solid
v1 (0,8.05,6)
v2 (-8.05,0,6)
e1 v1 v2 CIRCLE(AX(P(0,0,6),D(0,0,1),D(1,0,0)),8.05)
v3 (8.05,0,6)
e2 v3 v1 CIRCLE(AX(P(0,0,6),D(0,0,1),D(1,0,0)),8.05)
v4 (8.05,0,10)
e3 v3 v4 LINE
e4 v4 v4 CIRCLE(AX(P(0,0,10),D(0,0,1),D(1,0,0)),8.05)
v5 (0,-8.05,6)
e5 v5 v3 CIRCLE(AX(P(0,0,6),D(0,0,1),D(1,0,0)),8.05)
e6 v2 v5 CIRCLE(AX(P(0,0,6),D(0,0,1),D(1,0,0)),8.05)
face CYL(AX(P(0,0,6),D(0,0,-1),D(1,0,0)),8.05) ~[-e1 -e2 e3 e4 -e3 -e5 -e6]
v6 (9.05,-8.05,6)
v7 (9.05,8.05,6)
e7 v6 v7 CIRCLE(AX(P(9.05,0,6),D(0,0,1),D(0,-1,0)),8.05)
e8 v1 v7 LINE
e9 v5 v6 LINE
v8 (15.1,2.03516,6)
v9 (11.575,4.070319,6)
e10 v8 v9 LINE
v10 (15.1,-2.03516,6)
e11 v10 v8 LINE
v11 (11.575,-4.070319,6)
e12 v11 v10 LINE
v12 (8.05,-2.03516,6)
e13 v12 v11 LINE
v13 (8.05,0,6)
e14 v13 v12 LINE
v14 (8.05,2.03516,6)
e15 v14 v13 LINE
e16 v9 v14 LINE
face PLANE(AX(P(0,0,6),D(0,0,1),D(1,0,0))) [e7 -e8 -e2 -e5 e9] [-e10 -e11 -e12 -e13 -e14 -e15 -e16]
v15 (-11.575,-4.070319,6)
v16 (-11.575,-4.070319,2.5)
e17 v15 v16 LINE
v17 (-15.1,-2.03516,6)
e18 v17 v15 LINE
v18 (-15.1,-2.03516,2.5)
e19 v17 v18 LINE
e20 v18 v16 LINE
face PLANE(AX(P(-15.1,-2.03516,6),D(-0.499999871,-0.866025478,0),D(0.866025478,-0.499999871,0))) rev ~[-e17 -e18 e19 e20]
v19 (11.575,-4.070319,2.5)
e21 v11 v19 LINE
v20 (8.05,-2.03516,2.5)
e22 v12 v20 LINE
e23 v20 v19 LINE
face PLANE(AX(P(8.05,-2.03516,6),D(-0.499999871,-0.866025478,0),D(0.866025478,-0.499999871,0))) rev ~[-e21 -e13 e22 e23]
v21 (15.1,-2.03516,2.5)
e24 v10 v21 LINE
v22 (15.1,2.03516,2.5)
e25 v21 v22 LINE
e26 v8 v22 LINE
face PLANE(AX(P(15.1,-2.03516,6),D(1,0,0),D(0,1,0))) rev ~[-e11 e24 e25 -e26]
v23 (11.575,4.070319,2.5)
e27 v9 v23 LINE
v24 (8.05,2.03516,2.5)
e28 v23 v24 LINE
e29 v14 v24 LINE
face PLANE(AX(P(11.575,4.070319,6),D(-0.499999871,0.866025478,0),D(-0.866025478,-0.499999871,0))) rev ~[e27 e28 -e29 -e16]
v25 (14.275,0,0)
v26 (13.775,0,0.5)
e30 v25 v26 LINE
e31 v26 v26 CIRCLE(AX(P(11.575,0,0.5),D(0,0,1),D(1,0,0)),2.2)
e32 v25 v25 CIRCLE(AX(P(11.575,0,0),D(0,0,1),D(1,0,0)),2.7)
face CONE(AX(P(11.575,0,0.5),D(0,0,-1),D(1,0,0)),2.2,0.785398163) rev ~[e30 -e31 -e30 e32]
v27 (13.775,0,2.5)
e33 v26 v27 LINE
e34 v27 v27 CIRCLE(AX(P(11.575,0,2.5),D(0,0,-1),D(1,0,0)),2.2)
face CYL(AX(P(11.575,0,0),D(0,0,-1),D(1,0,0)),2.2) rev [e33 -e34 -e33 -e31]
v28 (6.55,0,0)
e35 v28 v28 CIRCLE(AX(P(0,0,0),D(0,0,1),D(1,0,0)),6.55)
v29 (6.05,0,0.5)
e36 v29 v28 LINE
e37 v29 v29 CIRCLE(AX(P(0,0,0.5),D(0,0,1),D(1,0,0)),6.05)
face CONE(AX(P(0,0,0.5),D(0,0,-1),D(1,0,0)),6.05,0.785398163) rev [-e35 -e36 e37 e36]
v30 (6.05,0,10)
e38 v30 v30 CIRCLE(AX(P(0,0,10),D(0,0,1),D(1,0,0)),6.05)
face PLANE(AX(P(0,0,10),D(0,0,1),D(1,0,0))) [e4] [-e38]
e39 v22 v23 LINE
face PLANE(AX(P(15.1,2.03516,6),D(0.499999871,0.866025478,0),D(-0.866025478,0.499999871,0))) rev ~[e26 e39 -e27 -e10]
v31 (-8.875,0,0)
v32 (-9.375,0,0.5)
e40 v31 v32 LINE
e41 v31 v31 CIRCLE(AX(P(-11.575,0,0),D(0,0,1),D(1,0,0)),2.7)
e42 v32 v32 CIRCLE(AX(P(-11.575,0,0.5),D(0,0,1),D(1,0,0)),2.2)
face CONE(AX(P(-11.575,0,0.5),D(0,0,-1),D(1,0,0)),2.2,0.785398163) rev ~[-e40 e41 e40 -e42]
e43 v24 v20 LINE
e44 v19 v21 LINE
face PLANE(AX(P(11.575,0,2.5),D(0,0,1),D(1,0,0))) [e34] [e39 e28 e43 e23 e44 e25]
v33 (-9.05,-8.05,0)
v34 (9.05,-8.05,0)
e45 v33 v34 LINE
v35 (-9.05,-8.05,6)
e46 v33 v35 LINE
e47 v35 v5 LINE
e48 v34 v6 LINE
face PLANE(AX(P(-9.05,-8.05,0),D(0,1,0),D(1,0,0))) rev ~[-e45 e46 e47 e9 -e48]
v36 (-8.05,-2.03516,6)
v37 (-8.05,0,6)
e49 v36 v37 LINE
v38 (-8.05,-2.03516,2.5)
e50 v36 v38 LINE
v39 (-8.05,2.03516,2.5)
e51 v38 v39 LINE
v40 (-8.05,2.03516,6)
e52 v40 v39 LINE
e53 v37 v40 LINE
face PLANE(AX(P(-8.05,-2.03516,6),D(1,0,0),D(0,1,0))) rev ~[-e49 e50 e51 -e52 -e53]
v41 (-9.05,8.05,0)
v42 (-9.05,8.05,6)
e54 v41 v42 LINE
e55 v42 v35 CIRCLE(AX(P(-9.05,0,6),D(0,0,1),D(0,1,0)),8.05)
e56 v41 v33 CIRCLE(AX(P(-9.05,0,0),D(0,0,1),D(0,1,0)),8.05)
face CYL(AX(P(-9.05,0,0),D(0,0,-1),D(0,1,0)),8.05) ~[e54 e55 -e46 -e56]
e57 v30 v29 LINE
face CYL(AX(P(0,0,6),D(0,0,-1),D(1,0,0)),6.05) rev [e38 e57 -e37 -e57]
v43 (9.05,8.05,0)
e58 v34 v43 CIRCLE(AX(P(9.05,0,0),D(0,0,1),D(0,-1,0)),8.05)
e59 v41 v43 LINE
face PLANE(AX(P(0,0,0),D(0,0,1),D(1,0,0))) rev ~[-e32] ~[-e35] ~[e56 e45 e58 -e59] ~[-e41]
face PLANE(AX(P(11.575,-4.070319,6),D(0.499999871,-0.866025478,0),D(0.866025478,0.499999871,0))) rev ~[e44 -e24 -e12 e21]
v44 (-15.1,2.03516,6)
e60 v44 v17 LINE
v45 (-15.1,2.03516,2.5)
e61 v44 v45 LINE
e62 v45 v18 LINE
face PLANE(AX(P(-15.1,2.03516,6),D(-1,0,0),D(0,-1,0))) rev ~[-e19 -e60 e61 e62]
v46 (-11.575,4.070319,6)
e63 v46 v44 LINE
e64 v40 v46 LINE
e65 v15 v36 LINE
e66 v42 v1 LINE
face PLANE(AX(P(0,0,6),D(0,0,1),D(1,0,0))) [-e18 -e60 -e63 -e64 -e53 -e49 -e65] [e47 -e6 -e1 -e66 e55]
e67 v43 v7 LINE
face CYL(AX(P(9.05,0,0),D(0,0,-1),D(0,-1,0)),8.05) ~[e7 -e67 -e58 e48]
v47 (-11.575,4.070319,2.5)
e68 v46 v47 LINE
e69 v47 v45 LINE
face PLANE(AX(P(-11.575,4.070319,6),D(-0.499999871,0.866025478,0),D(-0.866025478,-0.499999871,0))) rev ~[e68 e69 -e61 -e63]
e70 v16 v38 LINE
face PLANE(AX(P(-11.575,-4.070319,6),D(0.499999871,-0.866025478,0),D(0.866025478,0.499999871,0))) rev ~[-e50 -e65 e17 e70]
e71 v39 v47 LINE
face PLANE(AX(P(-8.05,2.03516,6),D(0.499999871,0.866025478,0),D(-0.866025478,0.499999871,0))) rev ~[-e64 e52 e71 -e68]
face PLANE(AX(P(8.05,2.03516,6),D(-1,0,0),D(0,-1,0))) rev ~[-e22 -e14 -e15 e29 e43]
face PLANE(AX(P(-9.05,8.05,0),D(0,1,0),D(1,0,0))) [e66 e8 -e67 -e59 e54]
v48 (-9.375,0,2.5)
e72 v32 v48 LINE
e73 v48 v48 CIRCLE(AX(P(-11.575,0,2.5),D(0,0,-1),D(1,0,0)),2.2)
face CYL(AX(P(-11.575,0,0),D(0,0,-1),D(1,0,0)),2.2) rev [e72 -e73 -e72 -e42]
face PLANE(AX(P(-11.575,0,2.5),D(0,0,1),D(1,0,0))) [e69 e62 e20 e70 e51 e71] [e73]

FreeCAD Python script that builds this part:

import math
import FreeCAD as App
import Part
import Sketcher
from FreeCAD import Vector
Q = App.Units.Quantity


def edges_at(feature, points):
    """Names of the edges that pass closest to the given points."""
    edges = feature.Shape.Edges
    near = lambda p: min(range(len(edges)), key=lambda i: edges[i].distToShape(Part.Vertex(*p))[0])
    return sorted({f"Edge{near(p) + 1}" for p in points})

doc = App.newDocument("Part")
body = doc.addObject("PartDesign::Body", "Body")

# Sketch on XY plane
sketch1 = body.newObject("Sketcher::SketchObject", "Sketch")
sketch1.AttachmentSupport = (doc.getObject("XY_Plane"), [""])
sketch1.MapMode = "FlatFace"
sketch1.addGeometry(Part.ArcOfCircle(Part.Circle(Vector(-9.1, 0, 0), Vector(0, 0, 1), 8.1), math.radians(90), math.radians(270)), False)
sketch1.addGeometry(Part.LineSegment(Vector(-9.1, -8.1, 0), Vector(9.1, -8.1, 0)), False)
sketch1.addGeometry(Part.ArcOfCircle(Part.Circle(Vector(9.1, 0, 0), Vector(0, 0, 1), 8.1), math.radians(-90), math.radians(90)), False)
sketch1.addGeometry(Part.LineSegment(Vector(9.1, 8.1, 0), Vector(-9.1, 8.1, 0)), False)
sketch1.addGeometry(Part.Circle(Vector(-11.6, 0, 0), Vector(0, 0, 1), 2.2), False)
sketch1.addGeometry(Part.Circle(Vector(11.6, 0, 0), Vector(0, 0, 1), 2.2), False)
sketch1.addGeometry(Part.Circle(Vector(0, 0, 0), Vector(0, 0, 1), 6), False)
sketch1.addConstraint(Sketcher.Constraint("Tangent", 0, 2, 1, 1))
sketch1.addConstraint(Sketcher.Constraint("Tangent", 1, 2, 2, 1))
sketch1.addConstraint(Sketcher.Constraint("Tangent", 2, 2, 3, 1))
sketch1.addConstraint(Sketcher.Constraint("Tangent", 3, 2, 0, 1))
sketch1.addConstraint(Sketcher.Constraint("Horizontal", 1))
sketch1.addConstraint(Sketcher.Constraint("Horizontal", 3))
sketch1.addConstraint(Sketcher.Constraint("Coincident", 6, 3, -1, 1))
sketch1.addConstraint(Sketcher.Constraint("Equal", 4, 5))
sketch1.addConstraint(Sketcher.Constraint("Symmetric", 0, 3, 2, 3, -1, 1))
sketch1.addConstraint(Sketcher.Constraint("Symmetric", 4, 3, 5, 3, -1, 1))
sketch1.addConstraint(Sketcher.Constraint("PointOnObject", 4, 3, -1))
sketch1.addConstraint(Sketcher.Constraint("Diameter", 4, Q("4.4 mm")))
sketch1.addConstraint(Sketcher.Constraint("Diameter", 6, Q("12.1 mm")))
sketch1.addConstraint(Sketcher.Constraint("Radius", 0, Q("8.05 mm")))
sketch1.addConstraint(Sketcher.Constraint("DistanceX", 1, 1, 1, 2, Q("18.1 mm")))
sketch1.addConstraint(Sketcher.Constraint("DistanceX", 4, 3, 5, 3, Q("23.15 mm")))
pad1 = body.newObject("PartDesign::Pad", "Pad")
pad1.Profile = sketch1
pad1.Length = 6

# Sketch on XY plane
sketch2 = body.newObject("Sketcher::SketchObject", "Sketch001")
sketch2.AttachmentSupport = (doc.getObject("XY_Plane"), [""])
sketch2.MapMode = "FlatFace"
sketch2.AttachmentOffset = App.Placement(Vector(0, 0, 6), App.Rotation())
sketch2.addGeometry(Part.LineSegment(Vector(-11.6, -4.1, 0), Vector(-8.1, -2, 0)), False)
sketch2.addGeometry(Part.LineSegment(Vector(-8.1, -2, 0), Vector(-8.1, 2, 0)), False)
sketch2.addGeometry(Part.LineSegment(Vector(-8.1, 2, 0), Vector(-11.6, 4.1, 0)), False)
sketch2.addGeometry(Part.LineSegment(Vector(-11.6, 4.1, 0), Vector(-15.1, 2, 0)), False)
sketch2.addGeometry(Part.LineSegment(Vector(-15.1, 2, 0), Vector(-15.1, -2, 0)), False)
sketch2.addGeometry(Part.LineSegment(Vector(-15.1, -2, 0), Vector(-11.6, -4.1, 0)), False)
sketch2.addGeometry(Part.LineSegment(Vector(11.6, -4.1, 0), Vector(15.1, -2, 0)), False)
sketch2.addGeometry(Part.LineSegment(Vector(15.1, -2, 0), Vector(15.1, 2, 0)), False)
sketch2.addGeometry(Part.LineSegment(Vector(15.1, 2, 0), Vector(11.6, 4.1, 0)), False)
sketch2.addGeometry(Part.LineSegment(Vector(11.6, 4.1, 0), Vector(8.1, 2, 0)), False)
sketch2.addGeometry(Part.LineSegment(Vector(8.1, 2, 0), Vector(8.1, -2, 0)), False)
sketch2.addGeometry(Part.LineSegment(Vector(8.1, -2, 0), Vector(11.6, -4.1, 0)), False)
sketch2.addConstraint(Sketcher.Constraint("Coincident", 0, 2, 1, 1))
sketch2.addConstraint(Sketcher.Constraint("Coincident", 1, 2, 2, 1))
sketch2.addConstraint(Sketcher.Constraint("Coincident", 2, 2, 3, 1))
sketch2.addConstraint(Sketcher.Constraint("Coincident", 3, 2, 4, 1))
sketch2.addConstraint(Sketcher.Constraint("Coincident", 4, 2, 5, 1))
sketch2.addConstraint(Sketcher.Constraint("Coincident", 5, 2, 0, 1))
sketch2.addConstraint(Sketcher.Constraint("Coincident", 6, 2, 7, 1))
sketch2.addConstraint(Sketcher.Constraint("Coincident", 7, 2, 8, 1))
sketch2.addConstraint(Sketcher.Constraint("Coincident", 8, 2, 9, 1))
sketch2.addConstraint(Sketcher.Constraint("Coincident", 9, 2, 10, 1))
sketch2.addConstraint(Sketcher.Constraint("Coincident", 10, 2, 11, 1))
sketch2.addConstraint(Sketcher.Constraint("Coincident", 11, 2, 6, 1))
sketch2.addConstraint(Sketcher.Constraint("Vertical", 1))
sketch2.addConstraint(Sketcher.Constraint("Vertical", 4))
sketch2.addConstraint(Sketcher.Constraint("Vertical", 7))
sketch2.addConstraint(Sketcher.Constraint("Vertical", 10))
sketch2.addConstraint(Sketcher.Constraint("Symmetric", 3, 2, 6, 2, -1, 1))
sketch2.addConstraint(Sketcher.Constraint("Symmetric", 5, 2, 8, 2, -1, 1))
sketch2.addConstraint(Sketcher.Constraint("Symmetric", 0, 2, 9, 2, -1, 1))
sketch2.addConstraint(Sketcher.Constraint("Symmetric", 2, 2, 11, 2, -1, 1))
sketch2.addConstraint(Sketcher.Constraint("Symmetric", 2, 2, 8, 2, -2))
sketch2.addConstraint(Sketcher.Constraint("Parallel", 0, 3))
sketch2.addConstraint(Sketcher.Constraint("Parallel", 2, 5))
sketch2.addConstraint(Sketcher.Constraint("Parallel", 5, 8))
sketch2.addConstraint(Sketcher.Constraint("Parallel", 8, 11))
sketch2.addConstraint(Sketcher.Constraint("Horizontal", 1, 2, 3, 2))
sketch2.addConstraint(Sketcher.Constraint("Horizontal", 0, 2, 4, 2))
sketch2.addConstraint(Sketcher.Constraint("Angle", 0, Q("29.999991 deg")))
sketch2.addConstraint(Sketcher.Constraint("DistanceX", 3, 2, -1, 1, Q("15.1 mm")))
sketch2.addConstraint(Sketcher.Constraint("DistanceX", 1, 2, 9, 2, Q("16.1 mm")))
sketch2.addConstraint(Sketcher.Constraint("DistanceY", 1, 1, 1, 2, Q("4.07032 mm")))
pocket1 = body.newObject("PartDesign::Pocket", "Pocket")
pocket1.Profile = sketch2
pocket1.Length = 3.5

# Sketch on XY plane
sketch3 = body.newObject("Sketcher::SketchObject", "Sketch002")
sketch3.AttachmentSupport = (doc.getObject("XY_Plane"), [""])
sketch3.MapMode = "FlatFace"
sketch3.AttachmentOffset = App.Placement(Vector(0, 0, 6), App.Rotation())
sketch3.addGeometry(Part.Circle(Vector(0, 0, 0), Vector(0, 0, 1), 8), False)
sketch3.addGeometry(Part.Circle(Vector(0, 0, 0), Vector(0, 0, 1), 6), False)
sketch3.addConstraint(Sketcher.Constraint("Coincident", 0, 3, -1, 1))
sketch3.addConstraint(Sketcher.Constraint("Coincident", 1, 3, -1, 1))
sketch3.addConstraint(Sketcher.Constraint("Diameter", 0, Q("16.1 mm")))
sketch3.addConstraint(Sketcher.Constraint("Diameter", 1, Q("12.1 mm")))
pad2 = body.newObject("PartDesign::Pad", "Pad001")
pad2.Profile = sketch3
pad2.Length = 4
doc.recompute()

chamfer = body.newObject("PartDesign::Chamfer", "Chamfer")
chamfer.Base = (pad2, edges_at(pad2, [(-13.775, 0, 0), (-6.05, 0, 0), (9.375, 0, 0)]))
chamfer.Size = 0.5

doc.recompute()
